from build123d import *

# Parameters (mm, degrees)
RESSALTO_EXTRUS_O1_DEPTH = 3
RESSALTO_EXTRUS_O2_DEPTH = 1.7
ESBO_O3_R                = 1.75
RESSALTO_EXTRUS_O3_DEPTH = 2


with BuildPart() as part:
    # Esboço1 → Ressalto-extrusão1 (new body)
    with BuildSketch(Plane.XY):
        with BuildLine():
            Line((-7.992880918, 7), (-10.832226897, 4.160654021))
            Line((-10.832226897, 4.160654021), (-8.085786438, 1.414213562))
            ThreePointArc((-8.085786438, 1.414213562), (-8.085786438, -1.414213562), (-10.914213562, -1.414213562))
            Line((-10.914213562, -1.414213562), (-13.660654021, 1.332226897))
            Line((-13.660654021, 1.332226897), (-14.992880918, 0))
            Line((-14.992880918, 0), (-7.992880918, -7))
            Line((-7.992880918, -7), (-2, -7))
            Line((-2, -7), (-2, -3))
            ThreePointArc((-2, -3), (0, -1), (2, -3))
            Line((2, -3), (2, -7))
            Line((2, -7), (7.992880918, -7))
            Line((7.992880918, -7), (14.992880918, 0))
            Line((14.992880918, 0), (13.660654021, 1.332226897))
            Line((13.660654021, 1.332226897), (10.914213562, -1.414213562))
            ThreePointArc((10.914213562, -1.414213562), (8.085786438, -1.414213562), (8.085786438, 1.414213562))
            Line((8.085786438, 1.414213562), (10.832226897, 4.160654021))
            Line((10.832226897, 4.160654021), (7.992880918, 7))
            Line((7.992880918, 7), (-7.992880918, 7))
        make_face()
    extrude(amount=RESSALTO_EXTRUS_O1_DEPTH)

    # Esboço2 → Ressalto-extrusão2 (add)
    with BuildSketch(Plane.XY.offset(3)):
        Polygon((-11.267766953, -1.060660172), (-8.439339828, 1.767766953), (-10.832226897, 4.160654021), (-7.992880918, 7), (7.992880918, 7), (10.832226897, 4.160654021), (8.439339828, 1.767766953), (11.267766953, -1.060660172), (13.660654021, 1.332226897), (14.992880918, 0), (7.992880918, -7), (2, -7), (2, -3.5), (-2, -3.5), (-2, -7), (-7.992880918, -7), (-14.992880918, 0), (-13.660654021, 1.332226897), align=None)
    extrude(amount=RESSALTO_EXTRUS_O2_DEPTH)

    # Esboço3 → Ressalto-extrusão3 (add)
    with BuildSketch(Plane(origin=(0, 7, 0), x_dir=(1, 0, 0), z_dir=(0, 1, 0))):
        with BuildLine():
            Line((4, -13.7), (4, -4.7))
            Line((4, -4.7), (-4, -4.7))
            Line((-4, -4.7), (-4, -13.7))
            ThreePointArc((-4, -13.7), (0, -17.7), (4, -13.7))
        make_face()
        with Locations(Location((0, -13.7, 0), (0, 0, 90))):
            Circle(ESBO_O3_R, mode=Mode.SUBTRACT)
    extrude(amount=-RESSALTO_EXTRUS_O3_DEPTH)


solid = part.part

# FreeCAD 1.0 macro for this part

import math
import FreeCAD as App
import Part
import Sketcher

V = App.Vector

doc = App.newDocument("Part")
body = doc.addObject("PartDesign::Body", "Body")

# Sketch on XY plane
sketch1 = body.newObject("Sketcher::SketchObject", "Sketch")
sketch1.AttachmentSupport = (doc.getObject("XY_Plane"), [""])
sketch1.MapMode = "FlatFace"
sketch1.addGeometry(Part.LineSegment(V(-8, 7, 0), V(-10.8, 4.2, 0)), False)
sketch1.addGeometry(Part.LineSegment(V(-10.8, 4.2, 0), V(-8.1, 1.4, 0)), False)
sketch1.addGeometry(Part.ArcOfCircle(Part.Circle(V(-9.5, 0, 0), V(0, 0, 1), 2), math.radians(-135), math.radians(45)), False)
sketch1.addGeometry(Part.LineSegment(V(-10.9, -1.4, 0), V(-13.7, 1.3, 0)), False)
sketch1.addGeometry(Part.LineSegment(V(-13.7, 1.3, 0), V(-15, 0, 0)), False)
sketch1.addGeometry(Part.LineSegment(V(-15, 0, 0), V(-8, -7, 0)), False)
sketch1.addGeometry(Part.LineSegment(V(-8, -7, 0), V(-2, -7, 0)), False)
sketch1.addGeometry(Part.LineSegment(V(-2, -7, 0), V(-2, -3, 0)), False)
sketch1.addGeometry(Part.ArcOfCircle(Part.Circle(V(0, -3, 0), V(0, 0, 1), 2), math.radians(0), math.radians(180)), False)
sketch1.addGeometry(Part.LineSegment(V(2, -3, 0), V(2, -7, 0)), False)
sketch1.addGeometry(Part.LineSegment(V(2, -7, 0), V(8, -7, 0)), False)
sketch1.addGeometry(Part.LineSegment(V(8, -7, 0), V(15, 0, 0)), False)
sketch1.addGeometry(Part.LineSegment(V(15, 0, 0), V(13.7, 1.3, 0)), False)
sketch1.addGeometry(Part.LineSegment(V(13.7, 1.3, 0), V(10.9, -1.4, 0)), False)
sketch1.addGeometry(Part.ArcOfCircle(Part.Circle(V(9.5, 0, 0), V(0, 0, 1), 2), math.radians(135), math.radians(315)), False)
sketch1.addGeometry(Part.LineSegment(V(8.1, 1.4, 0), V(10.8, 4.2, 0)), False)
sketch1.addGeometry(Part.LineSegment(V(10.8, 4.2, 0), V(8, 7, 0)), False)
sketch1.addGeometry(Part.LineSegment(V(8, 7, 0), V(-8, 7, 0)), False)
sketch1.addConstraint(Sketcher.Constraint("Coincident", 0, 2, 1, 1))
sketch1.addConstraint(Sketcher.Constraint("Tangent", 1, 2, 2, 2))
sketch1.addConstraint(Sketcher.Constraint("Tangent", 2, 1, 3, 1))
sketch1.addConstraint(Sketcher.Constraint("Coincident", 3, 2, 4, 1))
sketch1.addConstraint(Sketcher.Constraint("Coincident", 4, 2, 5, 1))
sketch1.addConstraint(Sketcher.Constraint("Coincident", 5, 2, 6, 1))
sketch1.addConstraint(Sketcher.Constraint("Coincident", 6, 2, 7, 1))
sketch1.addConstraint(Sketcher.Constraint("Tangent", 7, 2, 8, 2))
sketch1.addConstraint(Sketcher.Constraint("Tangent", 8, 1, 9, 1))
sketch1.addConstraint(Sketcher.Constraint("Coincident", 9, 2, 10, 1))
sketch1.addConstraint(Sketcher.Constraint("Coincident", 10, 2, 11, 1))
sketch1.addConstraint(Sketcher.Constraint("Coincident", 11, 2, 12, 1))
sketch1.addConstraint(Sketcher.Constraint("Coincident", 12, 2, 13, 1))
sketch1.addConstraint(Sketcher.Constraint("Tangent", 13, 2, 14, 2))
sketch1.addConstraint(Sketcher.Constraint("Tangent", 14, 1, 15, 1))
sketch1.addConstraint(Sketcher.Constraint("Coincident", 15, 2, 16, 1))
sketch1.addConstraint(Sketcher.Constraint("Coincident", 16, 2, 17, 1))
sketch1.addConstraint(Sketcher.Constraint("Coincident", 17, 2, 0, 1))
sketch1.addConstraint(Sketcher.Constraint("Horizontal", 6))
sketch1.addConstraint(Sketcher.Constraint("Vertical", 7))
sketch1.addConstraint(Sketcher.Constraint("Vertical", 9))
sketch1.addConstraint(Sketcher.Constraint("Horizontal", 10))
sketch1.addConstraint(Sketcher.Constraint("Horizontal", 17))
sketch1.addConstraint(Sketcher.Constraint("Equal", 2, 8))
sketch1.addConstraint(Sketcher.Constraint("Equal", 8, 14))
sketch1.addConstraint(Sketcher.Constraint("Symmetric", 2, 3, 14, 3, -1, 1))
sketch1.addConstraint(Sketcher.Constraint("Symmetric", 4, 2, 11, 2, -1, 1))
sketch1.addConstraint(Sketcher.Constraint("Symmetric", 5, 2, 16, 2, -1, 1))
sketch1.addConstraint(Sketcher.Constraint("Symmetric", 10, 2, 17, 2, -1, 1))
sketch1.addConstraint(Sketcher.Constraint("Symmetric", 3, 2, 12, 2, -2))
sketch1.addConstraint(Sketcher.Constraint("Symmetric", 1, 2, 14, 1, -2))
sketch1.addConstraint(Sketcher.Constraint("PointOnObject", 8, 3, -2))
sketch1.addConstraint(Sketcher.Constraint("PointOnObject", 4, 2, -1))
sketch1.addConstraint(Sketcher.Constraint("Perpendicular", 0, 1))
sketch1.addConstraint(Sketcher.Constraint("Parallel", 1, 3))
sketch1.addConstraint(Sketcher.Constraint("Perpendicular", 3, 4))
sketch1.addConstraint(Sketcher.Constraint("Perpendicular", 4, 5))
sketch1.addConstraint(Sketcher.Constraint("Perpendicular", 5, 11))
sketch1.addConstraint(Sketcher.Constraint("Perpendicular", 11, 12))
sketch1.addConstraint(Sketcher.Constraint("Perpendicular", 15, 16))
sketch1.addConstraint(Sketcher.Constraint("Radius", 2, 2.0))
sketch1.addConstraint(Sketcher.Constraint("DistanceY", 7, 1, 7, 2, 4.0))
sketch1.addConstraint(Sketcher.Constraint("DistanceY", 8, 3, -1, 1, 3.0))
sketch1.addConstraint(Sketcher.Constraint("DistanceX", 2, 3, 14, 3, 19.0))
sketch1.addConstraint(Sketcher.Constraint("DistanceX", 6, 1, 6, 2, 5.992881))
pad1 = body.newObject("PartDesign::Pad", "Pad")
pad1.Profile = sketch1
pad1.Length = 3

# Sketch on XY plane
sketch2 = body.newObject("Sketcher::SketchObject", "Sketch001")
sketch2.AttachmentSupport = (doc.getObject("XY_Plane"), [""])
sketch2.MapMode = "FlatFace"
sketch2.AttachmentOffset = App.Placement(V(0, 0, 3), App.Rotation())
sketch2.addGeometry(Part.LineSegment(V(-8.4, 1.8, 0), V(-11.3, -1.1, 0)), False)
sketch2.addGeometry(Part.LineSegment(V(-11.3, -1.1, 0), V(-13.7, 1.3, 0)), False)
sketch2.addGeometry(Part.LineSegment(V(-13.7, 1.3, 0), V(-15, 0, 0)), False)
sketch2.addGeometry(Part.LineSegment(V(-15, 0, 0), V(-8, -7, 0)), False)
sketch2.addGeometry(Part.LineSegment(V(-8, -7, 0), V(-2, -7, 0)), False)
sketch2.addGeometry(Part.LineSegment(V(-2, -7, 0), V(-2, -3.5, 0)), False)
sketch2.addGeometry(Part.LineSegment(V(-2, -3.5, 0), V(2, -3.5, 0)), False)
sketch2.addGeometry(Part.LineSegment(V(2, -3.5, 0), V(2, -7, 0)), False)
sketch2.addGeometry(Part.LineSegment(V(2, -7, 0), V(8, -7, 0)), False)
sketch2.addGeometry(Part.LineSegment(V(8, -7, 0), V(15, 0, 0)), False)
sketch2.addGeometry(Part.LineSegment(V(15, 0, 0), V(13.7, 1.3, 0)), False)
sketch2.addGeometry(Part.LineSegment(V(13.7, 1.3, 0), V(11.3, -1.1, 0)), False)
sketch2.addGeometry(Part.LineSegment(V(11.3, -1.1, 0), V(8.4, 1.8, 0)), False)
sketch2.addGeometry(Part.LineSegment(V(8.4, 1.8, 0), V(10.8, 4.2, 0)), False)
sketch2.addGeometry(Part.LineSegment(V(10.8, 4.2, 0), V(8, 7, 0)), False)
sketch2.addGeometry(Part.LineSegment(V(8, 7, 0), V(-8, 7, 0)), False)
sketch2.addGeometry(Part.LineSegment(V(-8, 7, 0), V(-10.8, 4.2, 0)), False)
sketch2.addGeometry(Part.LineSegment(V(-10.8, 4.2, 0), V(-8.4, 1.8, 0)), False)
sketch2.addConstraint(Sketcher.Constraint("Coincident", 0, 2, 1, 1))
sketch2.addConstraint(Sketcher.Constraint("Coincident", 1, 2, 2, 1))
sketch2.addConstraint(Sketcher.Constraint("Coincident", 2, 2, 3, 1))
sketch2.addConstraint(Sketcher.Constraint("Coincident", 3, 2, 4, 1))
sketch2.addConstraint(Sketcher.Constraint("Coincident", 4, 2, 5, 1))
sketch2.addConstraint(Sketcher.Constraint("Coincident", 5, 2, 6, 1))
sketch2.addConstraint(Sketcher.Constraint("Coincident", 6, 2, 7, 1))
sketch2.addConstraint(Sketcher.Constraint("Coincident", 7, 2, 8, 1))
sketch2.addConstraint(Sketcher.Constraint("Coincident", 8, 2, 9, 1))
sketch2.addConstraint(Sketcher.Constraint("Coincident", 9, 2, 10, 1))
sketch2.addConstraint(Sketcher.Constraint("Coincident", 10, 2, 11, 1))
sketch2.addConstraint(Sketcher.Constraint("Coincident", 11, 2, 12, 1))
sketch2.addConstraint(Sketcher.Constraint("Coincident", 12, 2, 13, 1))
sketch2.addConstraint(Sketcher.Constraint("Coincident", 13, 2, 14, 1))
sketch2.addConstraint(Sketcher.Constraint("Coincident", 14, 2, 15, 1))
sketch2.addConstraint(Sketcher.Constraint("Coincident", 15, 2, 16, 1))
sketch2.addConstraint(Sketcher.Constraint("Coincident", 16, 2, 17, 1))
sketch2.addConstraint(Sketcher.Constraint("Coincident", 17, 2, 0, 1))
sketch2.addConstraint(Sketcher.Constraint("Horizontal", 4))
sketch2.addConstraint(Sketcher.Constraint("Vertical", 5))
sketch2.addConstraint(Sketcher.Constraint("Horizontal", 6))
sketch2.addConstraint(Sketcher.Constraint("Vertical", 7))
sketch2.addConstraint(Sketcher.Constraint("Horizontal", 8))
sketch2.addConstraint(Sketcher.Constraint("Horizontal", 15))
sketch2.addConstraint(Sketcher.Constraint("Symmetric", 2, 2, 9, 2, -1, 1))
sketch2.addConstraint(Sketcher.Constraint("Symmetric", 3, 2, 14, 2, -1, 1))
sketch2.addConstraint(Sketcher.Constraint("Symmetric", 8, 2, 15, 2, -1, 1))
sketch2.addConstraint(Sketcher.Constraint("Symmetric", 1, 2, 10, 2, -2))
sketch2.addConstraint(Sketcher.Constraint("Symmetric", 0, 2, 11, 2, -2))
sketch2.addConstraint(Sketcher.Constraint("Symmetric", 13, 2, 16, 2, -2))
sketch2.addConstraint(Sketcher.Constraint("Symmetric", 12, 2, 17, 2, -2))
sketch2.addConstraint(Sketcher.Constraint("PointOnObject", 2, 2, -1))
sketch2.addConstraint(Sketcher.Constraint("Perpendicular", 0, 1))
sketch2.addConstraint(Sketcher.Constraint("Perpendicular", 1, 2))
sketch2.addConstraint(Sketcher.Constraint("Perpendicular", 2, 3))
sketch2.addConstraint(Sketcher.Constraint("Perpendicular", 3, 9))
sketch2.addConstraint(Sketcher.Constraint("Perpendicular", 9, 10))
sketch2.addConstraint(Sketcher.Constraint("Perpendicular", 12, 13))
sketch2.addConstraint(Sketcher.Constraint("Perpendicular", 13, 14))
sketch2.addConstraint(Sketcher.Constraint("Equal", 4, 8))
sketch2.addConstraint(Sketcher.Constraint("DistanceX", 6, 1, 6, 2, 4.0))
sketch2.addConstraint(Sketcher.Constraint("Distance", 0, 4.0))
sketch2.addConstraint(Sketcher.Constraint("DistanceY", 5, 1, 5, 2, 3.5))
sketch2.addConstraint(Sketcher.Constraint("DistanceY", 3, 2, -1, 1, 7.0))
sketch2.addConstraint(Sketcher.Constraint("DistanceX", 4, 1, 4, 2, 5.992881))
sketch2.addConstraint(Sketcher.Constraint("Distance", 14, 4.015442))
sketch2.addConstraint(Sketcher.Constraint("DistanceY", 0, 2, -1, 1, 1.06066))
pad2 = body.newObject("PartDesign::Pad", "Pad001")
pad2.Profile = sketch2
pad2.Length = 1.7

# Sketch on XZ plane
sketch3 = body.newObject("Sketcher::SketchObject", "Sketch002")
sketch3.AttachmentSupport = (doc.getObject("XZ_Plane"), [""])
sketch3.MapMode = "FlatFace"
sketch3.AttachmentOffset = App.Placement(V(0, 0, -7), App.Rotation())
sketch3.addGeometry(Part.LineSegment(V(4, 13.7, 0), V(4, 4.7, 0)), False)
sketch3.addGeometry(Part.LineSegment(V(4, 4.7, 0), V(-4, 4.7, 0)), False)
sketch3.addGeometry(Part.LineSegment(V(-4, 4.7, 0), V(-4, 13.7, 0)), False)
sketch3.addGeometry(Part.ArcOfCircle(Part.Circle(V(0, 13.7, 0), V(0, 0, 1), 4), math.radians(0), math.radians(180)), False)
sketch3.addGeometry(Part.Circle(V(0, 13.7, 0), V(0, 0, 1), 1.8), False)
sketch3.addConstraint(Sketcher.Constraint("Coincident", 0, 2, 1, 1))
sketch3.addConstraint(Sketcher.Constraint("Coincident", 1, 2, 2, 1))
sketch3.addConstraint(Sketcher.Constraint("Tangent", 2, 2, 3, 2))
sketch3.addConstraint(Sketcher.Constraint("Tangent", 3, 1, 0, 1))
sketch3.addConstraint(Sketcher.Constraint("Vertical", 0))
sketch3.addConstraint(Sketcher.Constraint("Horizontal", 1))
sketch3.addConstraint(Sketcher.Constraint("Vertical", 2))
sketch3.addConstraint(Sketcher.Constraint("Coincident", 4, 3, 3, 3))
sketch3.addConstraint(Sketcher.Constraint("PointOnObject", 3, 3, -2))
sketch3.addConstraint(Sketcher.Constraint("Radius", 3, 4.0))
sketch3.addConstraint(Sketcher.Constraint("Diameter", 4, 3.5))
sketch3.addConstraint(Sketcher.Constraint("DistanceY", 0, 2, 0, 1, 9.0))
sketch3.addConstraint(Sketcher.Constraint("DistanceY", -1, 1, 3, 3, 13.7))
pad3 = body.newObject("PartDesign::Pad", "Pad002")
pad3.Profile = sketch3
pad3.Length = 2

doc.recompute()
